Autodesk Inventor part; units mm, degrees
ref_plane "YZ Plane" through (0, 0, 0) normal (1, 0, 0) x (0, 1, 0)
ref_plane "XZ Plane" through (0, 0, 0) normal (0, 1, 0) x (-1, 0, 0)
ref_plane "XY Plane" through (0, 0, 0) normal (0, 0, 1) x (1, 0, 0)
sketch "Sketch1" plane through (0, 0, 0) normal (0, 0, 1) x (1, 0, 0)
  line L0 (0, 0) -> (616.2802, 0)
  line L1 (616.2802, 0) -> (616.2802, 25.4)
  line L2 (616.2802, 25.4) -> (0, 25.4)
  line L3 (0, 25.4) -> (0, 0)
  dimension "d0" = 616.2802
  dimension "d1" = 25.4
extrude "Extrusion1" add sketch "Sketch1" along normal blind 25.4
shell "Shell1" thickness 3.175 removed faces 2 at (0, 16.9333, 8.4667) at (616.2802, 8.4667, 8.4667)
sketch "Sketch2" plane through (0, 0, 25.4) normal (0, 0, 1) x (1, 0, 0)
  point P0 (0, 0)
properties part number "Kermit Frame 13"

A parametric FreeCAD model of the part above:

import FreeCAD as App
import Part
import Sketcher

V = App.Vector
Q = App.Units.Quantity


def faces_at(feature, points):
    """Names of the faces that lie closest to the given points."""
    faces = feature.Shape.Faces
    near = lambda p: min(range(len(faces)), key=lambda i: faces[i].distToShape(Part.Vertex(*p))[0])
    return sorted({f"Face{near(p) + 1}" for p in points})


def add_polygon(sketch, points):
    """Adds a closed chain of lines whose ends are joined by coincident constraints."""
    first, n = sketch.GeometryCount, len(points)
    for a, b in zip(points, points[1:] + points[:1]):
        sketch.addGeometry(Part.LineSegment(App.Vector(*a, 0), App.Vector(*b, 0)), False)
    for i in range(n):
        sketch.addConstraint(Sketcher.Constraint("Coincident", first + i, 2, first + (i + 1) % n, 1))

doc = App.newDocument("Part")
body = doc.addObject("PartDesign::Body", "Body")

# Sketch on XY plane
sketch1 = body.newObject("Sketcher::SketchObject", "Sketch")
sketch1.AttachmentSupport = (doc.getObject("XY_Plane"), [""])
sketch1.MapMode = "FlatFace"
add_polygon(sketch1, [(0, 25), (0, 0), (616, 0), (616, 25)])  # lines 0-3
sketch1.addConstraint([
    Sketcher.Constraint("Vertical", 0),
    Sketcher.Constraint("Horizontal", 1),
    Sketcher.Constraint("Vertical", 2),
    Sketcher.Constraint("Horizontal", 3),
    Sketcher.Constraint("Coincident", 0, 2, -1, 1),
    Sketcher.Constraint("DistanceY", 0, 2, 0, 1, Q("1 in")),
    Sketcher.Constraint("DistanceX", 1, 1, 1, 2, Q("24.263 in")),
])
pad1 = body.newObject("PartDesign::Pad", "Pad")
pad1.Profile = sketch1
pad1.Length = Q("1 in")
doc.recompute()

thickness = body.newObject("PartDesign::Thickness", "Thickness")
thickness.Base = (pad1, faces_at(pad1, [(0, 16.933, 8.467), (616.28, 8.467, 8.467)]))
thickness.Value = Q("0.125 in")
thickness.Reversed = True
thickness.Join = "Intersection"

doc.recompute()
